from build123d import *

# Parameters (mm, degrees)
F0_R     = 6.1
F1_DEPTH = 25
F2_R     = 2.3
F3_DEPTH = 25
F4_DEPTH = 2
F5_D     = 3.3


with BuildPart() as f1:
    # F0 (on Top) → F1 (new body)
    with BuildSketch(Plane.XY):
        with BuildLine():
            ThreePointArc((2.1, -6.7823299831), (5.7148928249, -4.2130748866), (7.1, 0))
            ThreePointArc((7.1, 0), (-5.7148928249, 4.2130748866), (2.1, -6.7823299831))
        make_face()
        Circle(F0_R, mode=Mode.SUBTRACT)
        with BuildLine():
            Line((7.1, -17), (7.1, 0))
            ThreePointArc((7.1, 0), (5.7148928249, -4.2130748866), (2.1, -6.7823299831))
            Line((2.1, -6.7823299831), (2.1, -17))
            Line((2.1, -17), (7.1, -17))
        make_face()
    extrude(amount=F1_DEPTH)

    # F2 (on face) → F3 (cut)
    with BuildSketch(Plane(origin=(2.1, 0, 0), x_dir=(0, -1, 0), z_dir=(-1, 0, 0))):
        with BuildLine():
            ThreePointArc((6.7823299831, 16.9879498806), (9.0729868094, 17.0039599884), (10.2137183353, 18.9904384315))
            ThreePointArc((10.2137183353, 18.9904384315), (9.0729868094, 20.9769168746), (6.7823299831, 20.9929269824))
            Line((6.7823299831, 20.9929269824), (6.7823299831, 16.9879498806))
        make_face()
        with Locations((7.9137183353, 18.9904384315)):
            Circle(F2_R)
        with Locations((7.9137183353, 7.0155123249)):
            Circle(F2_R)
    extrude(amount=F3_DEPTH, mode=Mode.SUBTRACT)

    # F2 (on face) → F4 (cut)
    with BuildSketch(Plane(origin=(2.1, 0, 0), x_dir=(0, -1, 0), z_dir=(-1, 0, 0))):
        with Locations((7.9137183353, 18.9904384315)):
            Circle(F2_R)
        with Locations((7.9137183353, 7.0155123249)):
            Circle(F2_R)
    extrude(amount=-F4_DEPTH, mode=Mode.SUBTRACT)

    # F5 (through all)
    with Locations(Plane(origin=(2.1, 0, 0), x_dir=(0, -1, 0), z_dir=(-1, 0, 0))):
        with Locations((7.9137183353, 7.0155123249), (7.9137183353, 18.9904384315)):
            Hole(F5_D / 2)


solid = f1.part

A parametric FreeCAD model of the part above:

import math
import FreeCAD as App
import Part
import Sketcher
Q = App.Units.Quantity

doc = App.newDocument("Part")
body = doc.addObject("PartDesign::Body", "Body")

sketch1 = body.newObject("Sketcher::SketchObject", "Sketch")
sketch1.AttachmentSupport = (doc.getObject("XY_Plane"), [""])
sketch1.MapMode = "FlatFace"
sketch1.addGeometry(Part.ArcOfCircle(Part.Circle(App.Vector(0, 0, 0), App.Vector(0, 0, 1), 7), math.radians(0), math.radians(287)), False)
sketch1.addGeometry(Part.LineSegment(App.Vector(2, -7, 0), App.Vector(2, -17, 0)), False)
sketch1.addGeometry(Part.LineSegment(App.Vector(2, -17, 0), App.Vector(7, -17, 0)), False)
sketch1.addGeometry(Part.LineSegment(App.Vector(7, -17, 0), App.Vector(7, 0, 0)), False)
sketch1.addGeometry(Part.Circle(App.Vector(0, 0, 0), App.Vector(0, 0, 1), 6), False)
sketch1.addConstraint(Sketcher.Constraint("Coincident", 0, 2, 1, 1))
sketch1.addConstraint(Sketcher.Constraint("Coincident", 1, 2, 2, 1))
sketch1.addConstraint(Sketcher.Constraint("Coincident", 2, 2, 3, 1))
sketch1.addConstraint(Sketcher.Constraint("Tangent", 3, 2, 0, 1))
sketch1.addConstraint(Sketcher.Constraint("Vertical", 1))
sketch1.addConstraint(Sketcher.Constraint("Horizontal", 2))
sketch1.addConstraint(Sketcher.Constraint("Vertical", 3))
sketch1.addConstraint(Sketcher.Constraint("Coincident", 0, 3, -1, 1))
sketch1.addConstraint(Sketcher.Constraint("Coincident", 4, 3, -1, 1))
sketch1.addConstraint(Sketcher.Constraint("Diameter", 4, Q("12.2 mm")))
sketch1.addConstraint(Sketcher.Constraint("Radius", 0, Q("7.1 mm")))
sketch1.addConstraint(Sketcher.Constraint("DistanceX", 2, 1, 2, 2, Q("5 mm")))
sketch1.addConstraint(Sketcher.Constraint("DistanceY", 3, 1, 3, 2, Q("17 mm")))
pad1 = body.newObject("PartDesign::Pad", "Pad")
pad1.Profile = sketch1
pad1.Length = 25

sketch2 = body.newObject("Sketcher::SketchObject", "Sketch001")
sketch2.AttachmentSupport = (doc.getObject("YZ_Plane"), [""])
sketch2.MapMode = "FlatFace"
sketch2.AttachmentOffset = App.Placement(App.Vector(0, 0, 2.1), App.Rotation())
sketch2.addGeometry(Part.ArcOfCircle(Part.Circle(App.Vector(-7.9, 19, 0), App.Vector(0, 0, 1), 2.3), math.radians(-180), math.radians(-61)), False)
sketch2.addGeometry(Part.ArcOfCircle(Part.Circle(App.Vector(-7.9, 19, 0), App.Vector(0, 0, 1), 2.3), math.radians(61), math.radians(180)), False)
sketch2.addGeometry(Part.ArcOfCircle(Part.Circle(App.Vector(-7.9, 19, 0), App.Vector(0, 0, 1), 2.3), math.radians(-61), math.radians(61)), False)
sketch2.addGeometry(Part.Circle(App.Vector(-7.9, 7, 0), App.Vector(0, 0, 1), 2.3), False)
sketch2.addConstraint(Sketcher.Constraint("Tangent", 0, 1, 1, 2))
sketch2.addConstraint(Sketcher.Constraint("Tangent", 1, 1, 2, 2))
sketch2.addConstraint(Sketcher.Constraint("Tangent", 2, 1, 0, 2))
sketch2.addConstraint(Sketcher.Constraint("Equal", 2, 3))
sketch2.addConstraint(Sketcher.Constraint("Horizontal", 2, 3, 0, 1))
sketch2.addConstraint(Sketcher.Constraint("Vertical", 2, 3, 3, 3))
sketch2.addConstraint(Sketcher.Constraint("Vertical", 1, 1, 2, 1))
sketch2.addConstraint(Sketcher.Constraint("Diameter", 3, Q("4.6 mm")))
sketch2.addConstraint(Sketcher.Constraint("DistanceX", 0, 3, -1, 1, Q("7.913718 mm")))
sketch2.addConstraint(Sketcher.Constraint("DistanceY", -1, 1, 0, 3, Q("18.990438 mm")))
sketch2.addConstraint(Sketcher.Constraint("DistanceX", 1, 1, -1, 1, Q("6.78233 mm")))
sketch2.addConstraint(Sketcher.Constraint("DistanceY", -1, 1, 3, 3, Q("7.015512 mm")))
pocket1 = body.newObject("PartDesign::Pocket", "Pocket")
pocket1.Profile = sketch2
pocket1.Length = 25

sketch3 = body.newObject("Sketcher::SketchObject", "Sketch002")
sketch3.AttachmentSupport = (doc.getObject("YZ_Plane"), [""])
sketch3.MapMode = "FlatFace"
sketch3.AttachmentOffset = App.Placement(App.Vector(0, 0, 2.1), App.Rotation())
sketch3.addGeometry(Part.Circle(App.Vector(-7.9, 19, 0), App.Vector(0, 0, 1), 2.3), False)
sketch3.addGeometry(Part.Circle(App.Vector(-7.9, 7, 0), App.Vector(0, 0, 1), 2.3), False)
sketch3.addConstraint(Sketcher.Constraint("Equal", 0, 1))
sketch3.addConstraint(Sketcher.Constraint("Vertical", 0, 3, 1, 3))
sketch3.addConstraint(Sketcher.Constraint("Diameter", 0, Q("4.6 mm")))
sketch3.addConstraint(Sketcher.Constraint("DistanceX", 0, 3, -1, 1, Q("7.913718 mm")))
sketch3.addConstraint(Sketcher.Constraint("DistanceY", -1, 1, 0, 3, Q("18.990438 mm")))
sketch3.addConstraint(Sketcher.Constraint("DistanceY", -1, 1, 1, 3, Q("7.015512 mm")))
pocket2 = body.newObject("PartDesign::Pocket", "Pocket001")
pocket2.Profile = sketch3
pocket2.Length = 2
pocket2.Reversed = True

sketch4 = body.newObject("Sketcher::SketchObject", "Sketch003")
sketch4.AttachmentSupport = (doc.getObject("YZ_Plane"), [""])
sketch4.MapMode = "FlatFace"
sketch4.AttachmentOffset = App.Placement(App.Vector(0, 0, 2.1), App.Rotation())
sketch4.addGeometry(Part.Circle(App.Vector(-7.9, 7, 0), App.Vector(0, 0, 1), 1.6), False)
sketch4.addGeometry(Part.Circle(App.Vector(-7.9, 19, 0), App.Vector(0, 0, 1), 1.6), False)
sketch4.addConstraint(Sketcher.Constraint("Equal", 0, 1))
sketch4.addConstraint(Sketcher.Constraint("Vertical", 0, 3, 1, 3))
sketch4.addConstraint(Sketcher.Constraint("Diameter", 0, Q("3.3 mm")))
sketch4.addConstraint(Sketcher.Constraint("DistanceX", 0, 3, -1, 1, Q("7.913718 mm")))
sketch4.addConstraint(Sketcher.Constraint("DistanceY", -1, 1, 1, 3, Q("18.990438 mm")))
sketch4.addConstraint(Sketcher.Constraint("DistanceY", -1, 1, 0, 3, Q("7.015512 mm")))
doc.recompute()
hole = body.newObject("PartDesign::Hole", "Hole")
hole.Profile = sketch4
hole.ThreadType = "None"
hole.Diameter = 3.3
hole.DepthType = "ThroughAll"
hole.Reversed = True

doc.recompute()
